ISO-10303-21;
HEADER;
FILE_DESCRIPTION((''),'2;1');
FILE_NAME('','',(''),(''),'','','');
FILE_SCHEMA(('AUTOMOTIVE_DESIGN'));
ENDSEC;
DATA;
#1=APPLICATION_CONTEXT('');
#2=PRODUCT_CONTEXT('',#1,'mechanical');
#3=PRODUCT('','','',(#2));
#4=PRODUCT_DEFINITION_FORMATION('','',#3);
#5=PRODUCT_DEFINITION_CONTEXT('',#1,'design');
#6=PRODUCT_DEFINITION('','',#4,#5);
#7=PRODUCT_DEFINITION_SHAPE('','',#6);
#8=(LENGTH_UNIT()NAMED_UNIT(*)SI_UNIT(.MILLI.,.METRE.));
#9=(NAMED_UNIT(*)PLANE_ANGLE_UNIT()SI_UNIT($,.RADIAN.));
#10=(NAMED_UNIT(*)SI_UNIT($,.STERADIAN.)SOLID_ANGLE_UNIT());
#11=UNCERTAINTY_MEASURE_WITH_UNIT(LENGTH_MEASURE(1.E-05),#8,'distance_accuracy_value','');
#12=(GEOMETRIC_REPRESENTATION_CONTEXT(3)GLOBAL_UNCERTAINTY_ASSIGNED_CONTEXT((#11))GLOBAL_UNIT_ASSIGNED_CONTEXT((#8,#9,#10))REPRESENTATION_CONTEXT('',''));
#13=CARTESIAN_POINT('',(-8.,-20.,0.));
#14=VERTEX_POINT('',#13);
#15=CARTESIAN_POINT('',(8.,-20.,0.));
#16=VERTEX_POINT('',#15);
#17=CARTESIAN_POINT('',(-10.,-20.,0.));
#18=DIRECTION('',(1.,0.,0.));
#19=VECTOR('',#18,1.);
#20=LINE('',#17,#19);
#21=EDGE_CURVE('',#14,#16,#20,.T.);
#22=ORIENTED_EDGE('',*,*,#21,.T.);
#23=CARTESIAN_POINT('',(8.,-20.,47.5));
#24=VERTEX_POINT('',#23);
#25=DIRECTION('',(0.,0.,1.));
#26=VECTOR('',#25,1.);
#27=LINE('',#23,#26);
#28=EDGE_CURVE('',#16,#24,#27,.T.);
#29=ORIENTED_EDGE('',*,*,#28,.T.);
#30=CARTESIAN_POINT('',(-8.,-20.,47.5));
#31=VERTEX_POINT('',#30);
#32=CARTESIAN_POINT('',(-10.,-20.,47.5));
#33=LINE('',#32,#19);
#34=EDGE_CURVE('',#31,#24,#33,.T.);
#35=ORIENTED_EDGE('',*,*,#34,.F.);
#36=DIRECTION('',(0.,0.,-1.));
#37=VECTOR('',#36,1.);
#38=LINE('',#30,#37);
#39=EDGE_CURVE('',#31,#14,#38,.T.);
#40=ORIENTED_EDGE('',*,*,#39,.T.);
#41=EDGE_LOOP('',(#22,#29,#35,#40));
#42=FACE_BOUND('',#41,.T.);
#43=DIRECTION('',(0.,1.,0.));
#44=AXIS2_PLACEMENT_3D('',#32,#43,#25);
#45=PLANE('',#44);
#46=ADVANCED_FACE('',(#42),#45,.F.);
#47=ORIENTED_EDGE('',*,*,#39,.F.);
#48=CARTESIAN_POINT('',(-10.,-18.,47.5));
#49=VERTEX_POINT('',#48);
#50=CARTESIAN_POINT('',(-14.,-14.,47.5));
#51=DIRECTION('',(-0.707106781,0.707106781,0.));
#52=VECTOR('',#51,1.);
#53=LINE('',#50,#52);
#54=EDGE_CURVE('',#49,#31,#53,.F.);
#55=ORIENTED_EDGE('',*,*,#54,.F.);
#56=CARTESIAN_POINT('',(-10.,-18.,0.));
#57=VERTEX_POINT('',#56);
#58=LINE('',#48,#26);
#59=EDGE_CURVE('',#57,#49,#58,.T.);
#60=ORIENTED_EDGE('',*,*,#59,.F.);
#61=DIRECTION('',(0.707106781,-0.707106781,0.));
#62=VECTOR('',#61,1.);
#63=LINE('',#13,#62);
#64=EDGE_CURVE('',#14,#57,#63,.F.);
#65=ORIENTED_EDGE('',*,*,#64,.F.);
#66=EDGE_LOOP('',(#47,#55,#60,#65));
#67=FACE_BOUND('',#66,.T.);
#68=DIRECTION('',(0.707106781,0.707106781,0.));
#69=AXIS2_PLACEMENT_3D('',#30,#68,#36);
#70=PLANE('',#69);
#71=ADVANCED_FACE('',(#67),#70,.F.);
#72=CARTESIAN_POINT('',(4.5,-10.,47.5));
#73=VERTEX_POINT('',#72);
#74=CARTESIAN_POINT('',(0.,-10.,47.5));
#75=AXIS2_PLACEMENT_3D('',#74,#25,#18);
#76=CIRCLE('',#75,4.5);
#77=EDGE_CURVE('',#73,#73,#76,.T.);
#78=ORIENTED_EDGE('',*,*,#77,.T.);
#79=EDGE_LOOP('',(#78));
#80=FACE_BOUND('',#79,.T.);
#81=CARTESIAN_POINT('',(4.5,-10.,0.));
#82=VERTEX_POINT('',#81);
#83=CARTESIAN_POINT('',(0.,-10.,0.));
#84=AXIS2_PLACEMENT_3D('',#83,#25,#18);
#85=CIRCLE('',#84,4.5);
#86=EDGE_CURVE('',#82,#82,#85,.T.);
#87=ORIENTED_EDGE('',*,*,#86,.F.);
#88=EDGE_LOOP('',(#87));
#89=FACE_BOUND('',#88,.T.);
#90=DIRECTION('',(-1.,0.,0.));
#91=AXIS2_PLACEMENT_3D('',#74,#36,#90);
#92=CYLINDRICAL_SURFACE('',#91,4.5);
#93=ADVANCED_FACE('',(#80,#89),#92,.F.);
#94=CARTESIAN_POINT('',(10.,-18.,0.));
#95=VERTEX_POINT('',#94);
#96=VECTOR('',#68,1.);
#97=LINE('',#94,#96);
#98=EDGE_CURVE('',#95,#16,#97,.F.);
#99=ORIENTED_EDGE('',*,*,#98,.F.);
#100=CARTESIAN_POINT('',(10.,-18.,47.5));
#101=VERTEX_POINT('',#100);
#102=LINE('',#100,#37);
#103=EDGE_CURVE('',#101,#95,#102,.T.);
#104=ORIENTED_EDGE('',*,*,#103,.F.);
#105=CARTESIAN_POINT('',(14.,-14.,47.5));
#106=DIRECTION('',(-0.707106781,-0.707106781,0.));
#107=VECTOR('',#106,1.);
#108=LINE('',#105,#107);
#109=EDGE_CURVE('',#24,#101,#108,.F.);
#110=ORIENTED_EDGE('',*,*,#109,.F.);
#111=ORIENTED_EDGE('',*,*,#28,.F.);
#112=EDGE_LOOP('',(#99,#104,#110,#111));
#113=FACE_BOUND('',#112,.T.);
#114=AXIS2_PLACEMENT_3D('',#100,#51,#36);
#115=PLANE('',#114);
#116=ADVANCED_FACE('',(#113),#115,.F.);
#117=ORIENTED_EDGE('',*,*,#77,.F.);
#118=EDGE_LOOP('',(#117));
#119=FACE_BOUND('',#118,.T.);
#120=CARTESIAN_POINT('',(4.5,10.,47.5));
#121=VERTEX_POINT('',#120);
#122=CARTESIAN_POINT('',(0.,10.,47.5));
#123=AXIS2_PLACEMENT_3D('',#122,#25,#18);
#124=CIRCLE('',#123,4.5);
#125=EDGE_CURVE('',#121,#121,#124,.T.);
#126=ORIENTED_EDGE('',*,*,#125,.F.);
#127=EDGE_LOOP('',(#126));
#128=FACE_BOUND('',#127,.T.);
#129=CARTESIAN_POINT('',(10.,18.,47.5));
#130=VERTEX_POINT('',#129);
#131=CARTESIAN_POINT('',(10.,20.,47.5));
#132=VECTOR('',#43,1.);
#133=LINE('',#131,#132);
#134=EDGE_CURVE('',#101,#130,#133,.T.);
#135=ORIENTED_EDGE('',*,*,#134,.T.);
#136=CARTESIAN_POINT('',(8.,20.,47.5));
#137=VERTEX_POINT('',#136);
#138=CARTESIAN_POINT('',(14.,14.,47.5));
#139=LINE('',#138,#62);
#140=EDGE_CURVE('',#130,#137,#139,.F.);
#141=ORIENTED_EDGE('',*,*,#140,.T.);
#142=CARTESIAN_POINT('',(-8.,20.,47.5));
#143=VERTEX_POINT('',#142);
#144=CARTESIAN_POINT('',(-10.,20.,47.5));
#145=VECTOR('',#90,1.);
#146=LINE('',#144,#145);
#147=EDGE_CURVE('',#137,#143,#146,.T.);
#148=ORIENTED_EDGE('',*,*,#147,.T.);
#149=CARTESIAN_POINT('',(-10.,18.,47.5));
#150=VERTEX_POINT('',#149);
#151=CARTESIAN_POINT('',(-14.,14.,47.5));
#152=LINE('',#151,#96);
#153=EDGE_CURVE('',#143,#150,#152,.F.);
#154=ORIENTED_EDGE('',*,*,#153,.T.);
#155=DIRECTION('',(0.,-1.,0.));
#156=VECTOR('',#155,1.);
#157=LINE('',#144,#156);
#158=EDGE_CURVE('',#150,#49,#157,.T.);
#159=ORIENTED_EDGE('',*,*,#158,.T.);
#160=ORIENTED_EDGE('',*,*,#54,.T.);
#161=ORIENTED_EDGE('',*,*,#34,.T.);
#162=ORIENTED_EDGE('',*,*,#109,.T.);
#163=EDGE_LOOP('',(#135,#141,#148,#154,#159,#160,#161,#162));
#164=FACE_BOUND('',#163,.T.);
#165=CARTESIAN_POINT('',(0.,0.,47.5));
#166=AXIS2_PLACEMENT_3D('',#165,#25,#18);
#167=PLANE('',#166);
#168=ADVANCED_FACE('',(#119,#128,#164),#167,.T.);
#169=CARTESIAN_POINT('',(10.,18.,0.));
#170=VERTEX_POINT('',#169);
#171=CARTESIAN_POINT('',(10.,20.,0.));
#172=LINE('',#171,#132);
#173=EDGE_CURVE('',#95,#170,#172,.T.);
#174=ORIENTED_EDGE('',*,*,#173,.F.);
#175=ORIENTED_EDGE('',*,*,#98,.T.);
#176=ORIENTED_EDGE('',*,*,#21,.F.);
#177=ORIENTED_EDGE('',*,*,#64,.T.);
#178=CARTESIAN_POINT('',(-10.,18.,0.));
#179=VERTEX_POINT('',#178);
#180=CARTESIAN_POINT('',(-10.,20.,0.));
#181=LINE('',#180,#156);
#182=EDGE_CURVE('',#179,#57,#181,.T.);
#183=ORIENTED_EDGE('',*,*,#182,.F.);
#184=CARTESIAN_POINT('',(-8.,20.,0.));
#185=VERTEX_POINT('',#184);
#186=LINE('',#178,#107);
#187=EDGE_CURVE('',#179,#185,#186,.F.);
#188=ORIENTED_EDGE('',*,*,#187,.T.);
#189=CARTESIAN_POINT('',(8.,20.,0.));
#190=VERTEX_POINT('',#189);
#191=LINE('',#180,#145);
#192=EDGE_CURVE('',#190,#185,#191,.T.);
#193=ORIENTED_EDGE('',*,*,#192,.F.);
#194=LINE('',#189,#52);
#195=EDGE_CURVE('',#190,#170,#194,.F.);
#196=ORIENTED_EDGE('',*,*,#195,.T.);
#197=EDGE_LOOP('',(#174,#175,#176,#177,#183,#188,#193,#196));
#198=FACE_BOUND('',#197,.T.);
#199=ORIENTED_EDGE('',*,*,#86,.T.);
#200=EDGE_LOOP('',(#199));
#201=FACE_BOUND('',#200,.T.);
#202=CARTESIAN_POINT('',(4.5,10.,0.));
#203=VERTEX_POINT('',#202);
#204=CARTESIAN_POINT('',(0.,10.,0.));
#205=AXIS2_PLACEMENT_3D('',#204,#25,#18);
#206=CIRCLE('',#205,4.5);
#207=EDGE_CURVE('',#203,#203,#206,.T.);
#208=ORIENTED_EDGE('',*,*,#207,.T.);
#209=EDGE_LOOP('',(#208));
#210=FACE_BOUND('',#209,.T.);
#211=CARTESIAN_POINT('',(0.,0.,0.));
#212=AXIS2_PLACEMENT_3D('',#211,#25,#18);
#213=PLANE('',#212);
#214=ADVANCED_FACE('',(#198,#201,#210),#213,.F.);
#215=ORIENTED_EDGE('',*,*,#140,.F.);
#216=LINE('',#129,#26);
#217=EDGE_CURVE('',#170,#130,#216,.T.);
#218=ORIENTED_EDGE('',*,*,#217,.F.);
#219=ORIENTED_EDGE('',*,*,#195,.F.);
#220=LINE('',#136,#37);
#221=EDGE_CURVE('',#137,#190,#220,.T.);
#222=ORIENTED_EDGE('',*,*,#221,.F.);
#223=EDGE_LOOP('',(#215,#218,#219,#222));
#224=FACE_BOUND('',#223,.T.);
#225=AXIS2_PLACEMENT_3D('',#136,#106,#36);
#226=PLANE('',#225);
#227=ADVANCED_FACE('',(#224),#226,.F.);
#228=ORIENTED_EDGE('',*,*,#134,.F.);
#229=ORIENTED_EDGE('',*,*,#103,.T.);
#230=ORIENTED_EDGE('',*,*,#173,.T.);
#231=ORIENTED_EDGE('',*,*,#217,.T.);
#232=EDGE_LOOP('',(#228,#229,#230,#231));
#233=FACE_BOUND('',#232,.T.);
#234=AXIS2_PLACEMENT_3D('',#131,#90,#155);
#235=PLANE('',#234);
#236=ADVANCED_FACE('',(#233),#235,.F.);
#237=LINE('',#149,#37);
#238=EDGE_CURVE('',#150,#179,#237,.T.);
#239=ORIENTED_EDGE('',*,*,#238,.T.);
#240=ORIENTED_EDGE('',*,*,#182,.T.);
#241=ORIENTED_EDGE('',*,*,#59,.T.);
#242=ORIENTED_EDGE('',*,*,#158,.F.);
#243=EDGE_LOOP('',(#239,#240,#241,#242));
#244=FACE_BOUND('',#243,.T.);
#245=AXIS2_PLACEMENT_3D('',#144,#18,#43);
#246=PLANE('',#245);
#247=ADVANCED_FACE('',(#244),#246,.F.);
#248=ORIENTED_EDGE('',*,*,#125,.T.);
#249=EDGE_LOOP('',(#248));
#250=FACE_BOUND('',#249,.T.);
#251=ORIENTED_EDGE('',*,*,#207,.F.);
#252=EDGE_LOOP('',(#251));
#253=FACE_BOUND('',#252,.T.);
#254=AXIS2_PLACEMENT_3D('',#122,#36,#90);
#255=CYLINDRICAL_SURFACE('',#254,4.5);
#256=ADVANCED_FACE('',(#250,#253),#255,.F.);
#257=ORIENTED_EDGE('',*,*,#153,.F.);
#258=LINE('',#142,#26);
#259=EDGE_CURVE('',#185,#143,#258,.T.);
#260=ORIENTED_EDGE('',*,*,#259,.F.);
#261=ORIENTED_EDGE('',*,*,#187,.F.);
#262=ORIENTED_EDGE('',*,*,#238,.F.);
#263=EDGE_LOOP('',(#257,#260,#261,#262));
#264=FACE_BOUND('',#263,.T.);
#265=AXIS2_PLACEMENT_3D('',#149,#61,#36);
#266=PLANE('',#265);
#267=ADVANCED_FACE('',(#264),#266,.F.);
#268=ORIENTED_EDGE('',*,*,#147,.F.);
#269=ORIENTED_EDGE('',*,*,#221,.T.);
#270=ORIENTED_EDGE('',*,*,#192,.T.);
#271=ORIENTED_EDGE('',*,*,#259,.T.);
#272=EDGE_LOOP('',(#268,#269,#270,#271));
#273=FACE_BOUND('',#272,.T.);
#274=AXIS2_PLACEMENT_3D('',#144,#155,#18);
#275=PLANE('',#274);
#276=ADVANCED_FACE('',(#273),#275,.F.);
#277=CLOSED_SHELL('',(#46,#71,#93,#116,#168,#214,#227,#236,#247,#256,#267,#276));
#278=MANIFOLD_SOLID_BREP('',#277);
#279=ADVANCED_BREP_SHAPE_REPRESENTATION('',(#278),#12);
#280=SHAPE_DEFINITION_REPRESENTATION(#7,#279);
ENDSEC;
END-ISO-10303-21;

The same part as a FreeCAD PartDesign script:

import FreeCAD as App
import Part
import Sketcher
from FreeCAD import Vector


def edges_at(feature, points):
    """Names of the edges that pass closest to the given points."""
    edges = feature.Shape.Edges
    near = lambda p: min(range(len(edges)), key=lambda i: edges[i].distToShape(Part.Vertex(*p))[0])
    return sorted({f"Edge{near(p) + 1}" for p in points})


def add_polygon(sketch, points):
    """Adds a closed chain of lines whose ends are joined by coincident constraints."""
    first, n = sketch.GeometryCount, len(points)
    for a, b in zip(points, points[1:] + points[:1]):
        sketch.addGeometry(Part.LineSegment(App.Vector(*a, 0), App.Vector(*b, 0)), False)
    for i in range(n):
        sketch.addConstraint(Sketcher.Constraint("Coincident", first + i, 2, first + (i + 1) % n, 1))

doc = App.newDocument("Part")
body = doc.addObject("PartDesign::Body", "Body")

# Sketch on XY plane
sketch1 = body.newObject("Sketcher::SketchObject", "Sketch")
sketch1.AttachmentSupport = (doc.getObject("XY_Plane"), [""])
sketch1.MapMode = "FlatFace"
add_polygon(sketch1, [(-10, 20), (-10, -20), (10, -20), (10, 20)])  # lines 0-3
sketch1.addGeometry(Part.Circle(Vector(0, -10, 0), Vector(0, 0, 1), 4.5), False)  # 4
sketch1.addGeometry(Part.Circle(Vector(0, 10, 0), Vector(0, 0, 1), 4.5), False)  # 5
sketch1.addConstraint(Sketcher.Constraint("Vertical", 0))
sketch1.addConstraint(Sketcher.Constraint("Horizontal", 1))
sketch1.addConstraint(Sketcher.Constraint("Vertical", 2))
sketch1.addConstraint(Sketcher.Constraint("Horizontal", 3))
sketch1.addConstraint(Sketcher.Constraint("Equal", 4, 5))
sketch1.addConstraint(Sketcher.Constraint("Symmetric", 4, 3, 5, 3, -1, 1))
sketch1.addConstraint(Sketcher.Constraint("Symmetric", 0, 2, 2, 2, -1, 1))
sketch1.addConstraint(Sketcher.Constraint("PointOnObject", 4, 3, -2))
sketch1.addConstraint(Sketcher.Constraint("Diameter", 4, 9.0))
sketch1.addConstraint(Sketcher.Constraint("DistanceX", 1, 1, 1, 2, 20.0))
sketch1.addConstraint(Sketcher.Constraint("DistanceY", 0, 2, 0, 1, 40.0))
sketch1.addConstraint(Sketcher.Constraint("DistanceY", 4, 3, -1, 1, 10.0))
pad1 = body.newObject("PartDesign::Pad", "Pad")
pad1.Profile = sketch1
pad1.Length = 47.5
doc.recompute()

chamfer = body.newObject("PartDesign::Chamfer", "Chamfer")
chamfer.Base = (pad1, edges_at(pad1, [(-10, -20, 23.75)]))
chamfer.Size = 2
doc.recompute()

chamfer2 = body.newObject("PartDesign::Chamfer", "Chamfer001")
chamfer2.Base = (chamfer, edges_at(chamfer, [(10, -20, 23.75), (-10, 20, 23.75), (10, 20, 23.75)]))
chamfer2.Size = 2

doc.recompute()
